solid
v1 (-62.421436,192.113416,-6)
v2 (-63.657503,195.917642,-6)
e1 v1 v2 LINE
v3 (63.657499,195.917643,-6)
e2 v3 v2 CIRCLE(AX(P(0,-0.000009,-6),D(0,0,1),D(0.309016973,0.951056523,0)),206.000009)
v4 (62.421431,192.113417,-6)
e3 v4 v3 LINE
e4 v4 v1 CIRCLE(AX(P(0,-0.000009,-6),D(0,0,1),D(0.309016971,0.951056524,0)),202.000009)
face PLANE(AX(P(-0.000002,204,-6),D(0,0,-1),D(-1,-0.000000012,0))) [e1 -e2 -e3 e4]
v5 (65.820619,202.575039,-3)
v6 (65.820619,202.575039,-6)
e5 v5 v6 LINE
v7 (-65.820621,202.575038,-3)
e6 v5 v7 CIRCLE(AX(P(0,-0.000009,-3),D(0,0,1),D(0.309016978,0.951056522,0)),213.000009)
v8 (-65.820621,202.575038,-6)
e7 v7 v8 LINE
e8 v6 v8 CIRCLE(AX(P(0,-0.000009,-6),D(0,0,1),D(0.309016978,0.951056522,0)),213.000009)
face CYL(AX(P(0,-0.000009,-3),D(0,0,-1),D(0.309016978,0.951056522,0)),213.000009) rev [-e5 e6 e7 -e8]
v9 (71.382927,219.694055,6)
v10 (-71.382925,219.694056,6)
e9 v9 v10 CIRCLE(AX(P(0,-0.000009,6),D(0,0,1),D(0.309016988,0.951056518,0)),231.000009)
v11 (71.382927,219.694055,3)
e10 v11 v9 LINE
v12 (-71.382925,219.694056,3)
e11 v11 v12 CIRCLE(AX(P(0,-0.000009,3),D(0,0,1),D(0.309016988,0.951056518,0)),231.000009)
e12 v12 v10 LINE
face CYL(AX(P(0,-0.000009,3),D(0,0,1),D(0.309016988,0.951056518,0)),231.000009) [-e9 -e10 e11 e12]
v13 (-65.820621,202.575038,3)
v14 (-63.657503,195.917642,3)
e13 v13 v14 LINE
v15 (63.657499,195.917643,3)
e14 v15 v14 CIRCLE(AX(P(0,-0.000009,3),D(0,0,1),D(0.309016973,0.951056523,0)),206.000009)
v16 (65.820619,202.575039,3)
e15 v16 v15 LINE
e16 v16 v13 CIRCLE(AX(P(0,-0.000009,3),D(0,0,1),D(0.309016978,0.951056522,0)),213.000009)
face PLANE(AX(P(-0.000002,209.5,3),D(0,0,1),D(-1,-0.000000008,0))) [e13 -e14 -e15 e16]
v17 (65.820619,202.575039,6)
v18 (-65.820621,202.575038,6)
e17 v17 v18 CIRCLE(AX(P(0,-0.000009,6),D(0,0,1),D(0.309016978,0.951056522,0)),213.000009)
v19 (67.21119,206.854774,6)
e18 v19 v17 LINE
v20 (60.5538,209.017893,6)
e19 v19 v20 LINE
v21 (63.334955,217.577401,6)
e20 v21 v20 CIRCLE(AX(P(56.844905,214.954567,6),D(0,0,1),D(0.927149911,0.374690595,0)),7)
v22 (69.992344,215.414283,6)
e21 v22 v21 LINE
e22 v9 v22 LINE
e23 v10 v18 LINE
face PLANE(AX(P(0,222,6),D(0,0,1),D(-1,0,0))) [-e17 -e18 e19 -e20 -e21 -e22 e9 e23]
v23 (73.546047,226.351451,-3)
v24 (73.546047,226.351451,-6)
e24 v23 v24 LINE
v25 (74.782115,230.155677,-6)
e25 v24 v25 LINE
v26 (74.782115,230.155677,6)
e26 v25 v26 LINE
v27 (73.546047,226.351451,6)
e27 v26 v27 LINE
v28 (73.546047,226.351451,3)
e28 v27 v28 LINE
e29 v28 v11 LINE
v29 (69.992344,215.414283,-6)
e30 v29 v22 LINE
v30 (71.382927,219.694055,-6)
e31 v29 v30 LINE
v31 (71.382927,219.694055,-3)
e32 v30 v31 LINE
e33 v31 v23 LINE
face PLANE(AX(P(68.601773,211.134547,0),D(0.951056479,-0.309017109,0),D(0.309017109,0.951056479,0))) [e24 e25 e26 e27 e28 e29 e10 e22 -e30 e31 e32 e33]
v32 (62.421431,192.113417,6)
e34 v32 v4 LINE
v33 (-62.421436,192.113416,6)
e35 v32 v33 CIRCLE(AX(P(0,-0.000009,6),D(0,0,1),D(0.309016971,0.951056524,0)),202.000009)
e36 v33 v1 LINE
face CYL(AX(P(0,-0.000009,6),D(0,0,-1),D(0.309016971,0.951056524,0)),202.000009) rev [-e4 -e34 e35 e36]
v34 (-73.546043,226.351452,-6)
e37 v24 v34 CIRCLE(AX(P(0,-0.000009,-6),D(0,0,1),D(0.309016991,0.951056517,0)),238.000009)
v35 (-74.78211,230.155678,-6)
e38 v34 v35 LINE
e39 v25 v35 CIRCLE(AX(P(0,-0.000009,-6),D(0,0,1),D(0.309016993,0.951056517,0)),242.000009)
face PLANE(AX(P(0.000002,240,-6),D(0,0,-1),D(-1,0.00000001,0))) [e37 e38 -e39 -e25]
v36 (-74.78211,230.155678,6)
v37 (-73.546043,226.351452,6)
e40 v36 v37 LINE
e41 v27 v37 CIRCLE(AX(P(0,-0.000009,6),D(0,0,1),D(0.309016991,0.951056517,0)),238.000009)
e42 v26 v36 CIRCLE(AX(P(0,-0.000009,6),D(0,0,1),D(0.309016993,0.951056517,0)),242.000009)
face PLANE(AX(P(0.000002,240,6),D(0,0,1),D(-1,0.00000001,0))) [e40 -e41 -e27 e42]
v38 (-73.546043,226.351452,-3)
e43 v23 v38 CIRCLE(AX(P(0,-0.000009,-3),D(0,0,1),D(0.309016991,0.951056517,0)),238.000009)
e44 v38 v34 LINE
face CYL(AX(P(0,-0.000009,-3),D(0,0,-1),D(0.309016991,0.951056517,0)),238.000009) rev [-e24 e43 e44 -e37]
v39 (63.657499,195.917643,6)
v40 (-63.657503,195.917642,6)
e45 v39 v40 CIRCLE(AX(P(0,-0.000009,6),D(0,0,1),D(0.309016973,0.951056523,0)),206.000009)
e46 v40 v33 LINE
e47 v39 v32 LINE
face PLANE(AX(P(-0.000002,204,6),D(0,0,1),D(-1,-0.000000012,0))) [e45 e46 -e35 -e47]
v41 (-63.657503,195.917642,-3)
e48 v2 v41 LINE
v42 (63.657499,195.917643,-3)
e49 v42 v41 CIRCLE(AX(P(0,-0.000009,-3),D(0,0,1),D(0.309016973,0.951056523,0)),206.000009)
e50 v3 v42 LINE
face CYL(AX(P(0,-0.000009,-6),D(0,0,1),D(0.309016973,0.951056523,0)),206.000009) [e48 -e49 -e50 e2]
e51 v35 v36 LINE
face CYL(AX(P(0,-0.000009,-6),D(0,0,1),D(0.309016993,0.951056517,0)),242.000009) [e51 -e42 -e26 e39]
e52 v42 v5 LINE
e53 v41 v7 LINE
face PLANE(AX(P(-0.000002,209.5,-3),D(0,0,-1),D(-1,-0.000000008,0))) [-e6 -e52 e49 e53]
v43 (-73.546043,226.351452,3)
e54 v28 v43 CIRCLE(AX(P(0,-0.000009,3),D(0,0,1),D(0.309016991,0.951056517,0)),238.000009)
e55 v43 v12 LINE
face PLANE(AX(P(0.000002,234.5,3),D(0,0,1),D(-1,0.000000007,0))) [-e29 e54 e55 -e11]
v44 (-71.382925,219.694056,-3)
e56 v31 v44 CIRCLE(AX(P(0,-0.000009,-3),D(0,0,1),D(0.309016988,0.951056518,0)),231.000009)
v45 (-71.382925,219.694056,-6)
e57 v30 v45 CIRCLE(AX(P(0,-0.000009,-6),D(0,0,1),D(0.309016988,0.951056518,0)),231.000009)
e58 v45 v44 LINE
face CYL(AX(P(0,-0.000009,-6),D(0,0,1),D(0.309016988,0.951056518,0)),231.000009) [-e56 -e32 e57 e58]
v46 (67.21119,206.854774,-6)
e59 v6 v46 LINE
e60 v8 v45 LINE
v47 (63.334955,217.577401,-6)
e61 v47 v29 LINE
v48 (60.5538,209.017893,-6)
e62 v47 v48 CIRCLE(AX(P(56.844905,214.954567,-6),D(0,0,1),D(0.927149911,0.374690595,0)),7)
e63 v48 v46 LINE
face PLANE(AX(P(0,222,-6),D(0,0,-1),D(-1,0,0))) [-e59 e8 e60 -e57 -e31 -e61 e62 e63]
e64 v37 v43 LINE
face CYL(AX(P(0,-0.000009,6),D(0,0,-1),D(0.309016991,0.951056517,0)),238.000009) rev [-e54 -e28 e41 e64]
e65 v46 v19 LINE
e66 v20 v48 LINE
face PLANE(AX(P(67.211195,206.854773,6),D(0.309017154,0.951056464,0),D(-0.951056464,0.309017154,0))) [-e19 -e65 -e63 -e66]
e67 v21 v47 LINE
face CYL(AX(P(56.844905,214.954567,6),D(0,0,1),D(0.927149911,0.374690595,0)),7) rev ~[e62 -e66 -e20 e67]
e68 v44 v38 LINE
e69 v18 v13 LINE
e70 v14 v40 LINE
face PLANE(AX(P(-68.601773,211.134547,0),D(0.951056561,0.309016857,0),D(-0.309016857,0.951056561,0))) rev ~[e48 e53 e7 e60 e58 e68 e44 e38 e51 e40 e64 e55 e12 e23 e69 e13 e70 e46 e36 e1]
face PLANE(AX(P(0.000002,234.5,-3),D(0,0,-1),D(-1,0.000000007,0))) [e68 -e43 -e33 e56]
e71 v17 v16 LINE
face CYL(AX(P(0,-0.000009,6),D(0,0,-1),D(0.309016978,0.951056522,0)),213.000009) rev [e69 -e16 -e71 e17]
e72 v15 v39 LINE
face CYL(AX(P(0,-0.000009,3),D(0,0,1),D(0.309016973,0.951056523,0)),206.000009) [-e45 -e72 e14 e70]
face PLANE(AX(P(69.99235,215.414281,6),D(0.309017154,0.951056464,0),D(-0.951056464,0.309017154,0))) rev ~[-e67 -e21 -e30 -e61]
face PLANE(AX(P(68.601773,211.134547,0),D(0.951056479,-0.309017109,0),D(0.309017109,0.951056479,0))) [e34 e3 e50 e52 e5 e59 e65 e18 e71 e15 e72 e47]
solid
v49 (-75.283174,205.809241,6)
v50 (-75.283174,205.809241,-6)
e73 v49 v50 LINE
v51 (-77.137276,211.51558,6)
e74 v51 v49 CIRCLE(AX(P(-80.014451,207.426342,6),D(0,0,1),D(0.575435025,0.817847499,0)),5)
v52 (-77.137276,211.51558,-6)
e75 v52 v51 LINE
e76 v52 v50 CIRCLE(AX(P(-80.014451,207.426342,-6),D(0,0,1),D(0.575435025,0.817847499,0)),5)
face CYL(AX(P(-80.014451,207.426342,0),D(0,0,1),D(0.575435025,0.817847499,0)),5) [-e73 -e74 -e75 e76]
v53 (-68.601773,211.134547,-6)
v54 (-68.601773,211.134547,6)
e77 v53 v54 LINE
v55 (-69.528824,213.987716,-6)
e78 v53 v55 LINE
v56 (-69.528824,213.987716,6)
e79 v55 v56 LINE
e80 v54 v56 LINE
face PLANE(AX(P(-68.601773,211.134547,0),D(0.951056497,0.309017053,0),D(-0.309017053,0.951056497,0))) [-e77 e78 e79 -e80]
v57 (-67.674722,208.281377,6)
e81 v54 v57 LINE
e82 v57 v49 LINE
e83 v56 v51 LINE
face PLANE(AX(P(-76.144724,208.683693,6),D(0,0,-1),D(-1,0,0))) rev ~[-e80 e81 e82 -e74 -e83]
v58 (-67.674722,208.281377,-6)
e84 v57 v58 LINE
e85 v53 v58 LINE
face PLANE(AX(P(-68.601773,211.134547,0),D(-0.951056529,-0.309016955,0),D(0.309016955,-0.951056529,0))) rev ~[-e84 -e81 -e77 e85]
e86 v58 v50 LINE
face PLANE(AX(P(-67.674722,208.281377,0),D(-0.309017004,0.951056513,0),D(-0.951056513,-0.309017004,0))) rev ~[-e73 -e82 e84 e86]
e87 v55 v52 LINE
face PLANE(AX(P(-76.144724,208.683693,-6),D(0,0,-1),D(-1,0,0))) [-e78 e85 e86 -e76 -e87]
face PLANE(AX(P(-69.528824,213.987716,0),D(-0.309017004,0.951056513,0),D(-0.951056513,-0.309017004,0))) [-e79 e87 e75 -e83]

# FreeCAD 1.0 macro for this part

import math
import FreeCAD as App
import Part
import Sketcher
Q = App.Units.Quantity

doc = App.newDocument("Part")
body = doc.addObject("PartDesign::Body", "Body")

# Sketch on an angled plane
sketch1 = doc.addObject("Sketcher::SketchObject", "Sketch")
body.addObject(sketch1)
sketch1.Placement = App.Placement(App.Vector(-68.601773, 211.134547, 0), App.Rotation(App.Vector(-0.309016857, 0.951056561, 0), App.Vector(0, 0, 1), App.Vector(0.951056561, 0.309016857, 0), "ZXY"))
sketch1.addGeometry(Part.LineSegment(App.Vector(-20, 6, 0), App.Vector(-20, -6, 0)), False)
sketch1.addGeometry(Part.LineSegment(App.Vector(-20, -6, 0), App.Vector(-16, -6, 0)), False)
sketch1.addGeometry(Part.LineSegment(App.Vector(-16, -6, 0), App.Vector(-16, -3, 0)), False)
sketch1.addGeometry(Part.LineSegment(App.Vector(-16, -3, 0), App.Vector(-9, -3, 0)), False)
sketch1.addGeometry(Part.LineSegment(App.Vector(-9, -3, 0), App.Vector(-9, -6, 0)), False)
sketch1.addGeometry(Part.LineSegment(App.Vector(-9, -6, 0), App.Vector(9, -6, 0)), False)
sketch1.addGeometry(Part.LineSegment(App.Vector(9, -6, 0), App.Vector(9, -3, 0)), False)
sketch1.addGeometry(Part.LineSegment(App.Vector(9, -3, 0), App.Vector(16, -3, 0)), False)
sketch1.addGeometry(Part.LineSegment(App.Vector(16, -3, 0), App.Vector(16, -6, 0)), False)
sketch1.addGeometry(Part.LineSegment(App.Vector(16, -6, 0), App.Vector(20, -6, 0)), False)
sketch1.addGeometry(Part.LineSegment(App.Vector(20, -6, 0), App.Vector(20, 6, 0)), False)
sketch1.addGeometry(Part.LineSegment(App.Vector(20, 6, 0), App.Vector(16, 6, 0)), False)
sketch1.addGeometry(Part.LineSegment(App.Vector(16, 6, 0), App.Vector(16, 3, 0)), False)
sketch1.addGeometry(Part.LineSegment(App.Vector(16, 3, 0), App.Vector(9, 3, 0)), False)
sketch1.addGeometry(Part.LineSegment(App.Vector(9, 3, 0), App.Vector(9, 6, 0)), False)
sketch1.addGeometry(Part.LineSegment(App.Vector(9, 6, 0), App.Vector(-9, 6, 0)), False)
sketch1.addGeometry(Part.LineSegment(App.Vector(-9, 6, 0), App.Vector(-9, 3, 0)), False)
sketch1.addGeometry(Part.LineSegment(App.Vector(-9, 3, 0), App.Vector(-16, 3, 0)), False)
sketch1.addGeometry(Part.LineSegment(App.Vector(-16, 3, 0), App.Vector(-16, 6, 0)), False)
sketch1.addGeometry(Part.LineSegment(App.Vector(-16, 6, 0), App.Vector(-20, 6, 0)), False)
sketch1.addConstraint(Sketcher.Constraint("Coincident", 0, 2, 1, 1))
sketch1.addConstraint(Sketcher.Constraint("Coincident", 1, 2, 2, 1))
sketch1.addConstraint(Sketcher.Constraint("Coincident", 2, 2, 3, 1))
sketch1.addConstraint(Sketcher.Constraint("Coincident", 3, 2, 4, 1))
sketch1.addConstraint(Sketcher.Constraint("Coincident", 4, 2, 5, 1))
sketch1.addConstraint(Sketcher.Constraint("Coincident", 5, 2, 6, 1))
sketch1.addConstraint(Sketcher.Constraint("Coincident", 6, 2, 7, 1))
sketch1.addConstraint(Sketcher.Constraint("Coincident", 7, 2, 8, 1))
sketch1.addConstraint(Sketcher.Constraint("Coincident", 8, 2, 9, 1))
sketch1.addConstraint(Sketcher.Constraint("Coincident", 9, 2, 10, 1))
sketch1.addConstraint(Sketcher.Constraint("Coincident", 10, 2, 11, 1))
sketch1.addConstraint(Sketcher.Constraint("Coincident", 11, 2, 12, 1))
sketch1.addConstraint(Sketcher.Constraint("Coincident", 12, 2, 13, 1))
sketch1.addConstraint(Sketcher.Constraint("Coincident", 13, 2, 14, 1))
sketch1.addConstraint(Sketcher.Constraint("Coincident", 14, 2, 15, 1))
sketch1.addConstraint(Sketcher.Constraint("Coincident", 15, 2, 16, 1))
sketch1.addConstraint(Sketcher.Constraint("Coincident", 16, 2, 17, 1))
sketch1.addConstraint(Sketcher.Constraint("Coincident", 17, 2, 18, 1))
sketch1.addConstraint(Sketcher.Constraint("Coincident", 18, 2, 19, 1))
sketch1.addConstraint(Sketcher.Constraint("Coincident", 19, 2, 0, 1))
sketch1.addConstraint(Sketcher.Constraint("Vertical", 0))
sketch1.addConstraint(Sketcher.Constraint("Horizontal", 1))
sketch1.addConstraint(Sketcher.Constraint("Vertical", 2))
sketch1.addConstraint(Sketcher.Constraint("Horizontal", 3))
sketch1.addConstraint(Sketcher.Constraint("Vertical", 4))
sketch1.addConstraint(Sketcher.Constraint("Horizontal", 5))
sketch1.addConstraint(Sketcher.Constraint("Vertical", 6))
sketch1.addConstraint(Sketcher.Constraint("Horizontal", 7))
sketch1.addConstraint(Sketcher.Constraint("Vertical", 8))
sketch1.addConstraint(Sketcher.Constraint("Horizontal", 9))
sketch1.addConstraint(Sketcher.Constraint("Vertical", 10))
sketch1.addConstraint(Sketcher.Constraint("Horizontal", 11))
sketch1.addConstraint(Sketcher.Constraint("Vertical", 12))
sketch1.addConstraint(Sketcher.Constraint("Horizontal", 13))
sketch1.addConstraint(Sketcher.Constraint("Vertical", 14))
sketch1.addConstraint(Sketcher.Constraint("Horizontal", 15))
sketch1.addConstraint(Sketcher.Constraint("Vertical", 16))
sketch1.addConstraint(Sketcher.Constraint("Horizontal", 17))
sketch1.addConstraint(Sketcher.Constraint("Vertical", 18))
sketch1.addConstraint(Sketcher.Constraint("Horizontal", 19))
sketch1.addConstraint(Sketcher.Constraint("Symmetric", 0, 2, 10, 2, -1, 1))
sketch1.addConstraint(Sketcher.Constraint("Symmetric", 2, 2, 12, 2, -1, 1))
sketch1.addConstraint(Sketcher.Constraint("Symmetric", 4, 2, 14, 2, -1, 1))
sketch1.addConstraint(Sketcher.Constraint("Symmetric", 6, 2, 16, 2, -1, 1))
sketch1.addConstraint(Sketcher.Constraint("Symmetric", 8, 2, 18, 2, -1, 1))
sketch1.addConstraint(Sketcher.Constraint("Symmetric", 3, 2, 6, 2, -2))
sketch1.addConstraint(Sketcher.Constraint("Symmetric", 1, 2, 8, 2, -2))
sketch1.addConstraint(Sketcher.Constraint("Horizontal", 1, 2, 4, 2))
sketch1.addConstraint(Sketcher.Constraint("DistanceX", 1, 1, 1, 2, Q("4 mm")))
sketch1.addConstraint(Sketcher.Constraint("DistanceX", 3, 1, 3, 2, Q("7 mm")))
sketch1.addConstraint(Sketcher.Constraint("DistanceX", 5, 1, 5, 2, Q("18 mm")))
sketch1.addConstraint(Sketcher.Constraint("DistanceY", 0, 2, 0, 1, Q("12 mm")))
sketch1.addConstraint(Sketcher.Constraint("DistanceY", 2, 1, 2, 2, Q("3 mm")))

# Sketch on XY plane
sketch2 = doc.addObject("Sketcher::SketchObject", "Sketch001")
body.addObject(sketch2)
sketch2.AttachmentSupport = (doc.XY_Plane, [""])
sketch2.MapMode = "FlatFace"
sketch2.addGeometry(Part.ArcOfCircle(Part.Circle(App.Vector(0, 0, 0), App.Vector(0, 0, 1), 222), math.radians(72), math.radians(108)), False)
sketch2.addConstraint(Sketcher.Constraint("Coincident", 0, 3, -1, 1))
sketch2.addConstraint(Sketcher.Constraint("Radius", 0, Q("222.000009 mm")))
sketch2.addConstraint(Sketcher.Constraint("DistanceX", -1, 1, 0, 1, Q("68.601773 mm")))
sketch2.addConstraint(Sketcher.Constraint("DistanceX", 0, 2, -1, 1, Q("68.601773 mm")))
doc.recompute()

additivepipe = doc.addObject("PartDesign::AdditivePipe", "AdditivePipe")
body.addObject(additivepipe)
additivepipe.Profile = sketch1
additivepipe.Spine = (sketch2, ["Edge1"])

# Sketch on XY plane
sketch3 = doc.addObject("Sketcher::SketchObject", "Sketch002")
body.addObject(sketch3)
sketch3.AttachmentSupport = (doc.XY_Plane, [""])
sketch3.MapMode = "FlatFace"
sketch3.AttachmentOffset = App.Placement(App.Vector(0, 0, 6), App.Rotation())
sketch3.addGeometry(Part.LineSegment(App.Vector(70, 215, 0), App.Vector(63, 218, 0)), False)
sketch3.addGeometry(Part.ArcOfCircle(Part.Circle(App.Vector(57, 215, 0), App.Vector(0, 0, 1), 7), math.radians(22), math.radians(302)), False)
sketch3.addGeometry(Part.LineSegment(App.Vector(61, 209, 0), App.Vector(67, 207, 0)), False)
sketch3.addGeometry(Part.LineSegment(App.Vector(67, 207, 0), App.Vector(70, 215, 0)), False)
sketch3.addConstraint(Sketcher.Constraint("Coincident", 0, 2, 1, 1))
sketch3.addConstraint(Sketcher.Constraint("Coincident", 1, 2, 2, 1))
sketch3.addConstraint(Sketcher.Constraint("Coincident", 2, 2, 3, 1))
sketch3.addConstraint(Sketcher.Constraint("Coincident", 3, 2, 0, 1))
sketch3.addConstraint(Sketcher.Constraint("Parallel", 0, 2))
sketch3.addConstraint(Sketcher.Constraint("Perpendicular", 2, 3))
sketch3.addConstraint(Sketcher.Constraint("Equal", 0, 2))
sketch3.addConstraint(Sketcher.Constraint("Radius", 1, Q("7 mm")))
sketch3.addConstraint(Sketcher.Constraint("Angle", 0, Q("161.99999 deg")))
sketch3.addConstraint(Sketcher.Constraint("Distance", 0, Q("7 mm")))
sketch3.addConstraint(Sketcher.Constraint("Distance", 3, Q("9 mm")))
sketch3.addConstraint(Sketcher.Constraint("DistanceY", -1, 1, 0, 2, Q("217.577401 mm")))
sketch3.addConstraint(Sketcher.Constraint("DistanceX", -1, 1, 1, 2, Q("60.5538 mm")))
pocket1 = doc.addObject("PartDesign::Pocket", "Pocket")
body.addObject(pocket1)
pocket1.Profile = sketch3
pocket1.Type = "ThroughAll"
body2 = doc.addObject("PartDesign::Body", "Body001")

# Sketch on XY plane
sketch4 = doc.addObject("Sketcher::SketchObject", "Sketch003")
body2.addObject(sketch4)
sketch4.AttachmentSupport = (doc.getObject("XY_Plane001"), [""])
sketch4.MapMode = "FlatFace"
sketch4.addGeometry(Part.LineSegment(App.Vector(-67.7, 208.3, 0), App.Vector(-68.6, 211.1, 0)), False)
sketch4.addGeometry(Part.LineSegment(App.Vector(-68.6, 211.1, 0), App.Vector(-69.5, 214, 0)), False)
sketch4.addGeometry(Part.LineSegment(App.Vector(-69.5, 214, 0), App.Vector(-77.1, 211.5, 0)), False)
sketch4.addGeometry(Part.ArcOfCircle(Part.Circle(App.Vector(-80, 207.4, 0), App.Vector(0, 0, 1), 5), math.radians(55), math.radians(341)), False)
sketch4.addGeometry(Part.LineSegment(App.Vector(-75.3, 205.8, 0), App.Vector(-67.7, 208.3, 0)), False)
sketch4.addConstraint(Sketcher.Constraint("Coincident", 0, 2, 1, 1))
sketch4.addConstraint(Sketcher.Constraint("Coincident", 1, 2, 2, 1))
sketch4.addConstraint(Sketcher.Constraint("Coincident", 2, 2, 3, 1))
sketch4.addConstraint(Sketcher.Constraint("Coincident", 3, 2, 4, 1))
sketch4.addConstraint(Sketcher.Constraint("Coincident", 4, 2, 0, 1))
sketch4.addConstraint(Sketcher.Constraint("Parallel", 0, 1))
sketch4.addConstraint(Sketcher.Constraint("Perpendicular", 1, 2))
sketch4.addConstraint(Sketcher.Constraint("Parallel", 2, 4))
sketch4.addConstraint(Sketcher.Constraint("Equal", 0, 1))
sketch4.addConstraint(Sketcher.Constraint("Equal", 2, 4))
sketch4.addConstraint(Sketcher.Constraint("Radius", 3, Q("5 mm")))
sketch4.addConstraint(Sketcher.Constraint("Angle", 0, Q("107.999998 deg")))
sketch4.addConstraint(Sketcher.Constraint("Distance", 0, Q("3 mm")))
sketch4.addConstraint(Sketcher.Constraint("Distance", 2, Q("8 mm")))
sketch4.addConstraint(Sketcher.Constraint("DistanceX", 3, 3, -1, 1, Q("80.014451 mm")))
sketch4.addConstraint(Sketcher.Constraint("DistanceY", -1, 1, 2, 2, Q("211.51558 mm")))
pad1 = doc.addObject("PartDesign::Pad", "Pad")
body2.addObject(pad1)
pad1.Profile = sketch4
pad1.Length = 12
pad1.Midplane = True

doc.recompute()
